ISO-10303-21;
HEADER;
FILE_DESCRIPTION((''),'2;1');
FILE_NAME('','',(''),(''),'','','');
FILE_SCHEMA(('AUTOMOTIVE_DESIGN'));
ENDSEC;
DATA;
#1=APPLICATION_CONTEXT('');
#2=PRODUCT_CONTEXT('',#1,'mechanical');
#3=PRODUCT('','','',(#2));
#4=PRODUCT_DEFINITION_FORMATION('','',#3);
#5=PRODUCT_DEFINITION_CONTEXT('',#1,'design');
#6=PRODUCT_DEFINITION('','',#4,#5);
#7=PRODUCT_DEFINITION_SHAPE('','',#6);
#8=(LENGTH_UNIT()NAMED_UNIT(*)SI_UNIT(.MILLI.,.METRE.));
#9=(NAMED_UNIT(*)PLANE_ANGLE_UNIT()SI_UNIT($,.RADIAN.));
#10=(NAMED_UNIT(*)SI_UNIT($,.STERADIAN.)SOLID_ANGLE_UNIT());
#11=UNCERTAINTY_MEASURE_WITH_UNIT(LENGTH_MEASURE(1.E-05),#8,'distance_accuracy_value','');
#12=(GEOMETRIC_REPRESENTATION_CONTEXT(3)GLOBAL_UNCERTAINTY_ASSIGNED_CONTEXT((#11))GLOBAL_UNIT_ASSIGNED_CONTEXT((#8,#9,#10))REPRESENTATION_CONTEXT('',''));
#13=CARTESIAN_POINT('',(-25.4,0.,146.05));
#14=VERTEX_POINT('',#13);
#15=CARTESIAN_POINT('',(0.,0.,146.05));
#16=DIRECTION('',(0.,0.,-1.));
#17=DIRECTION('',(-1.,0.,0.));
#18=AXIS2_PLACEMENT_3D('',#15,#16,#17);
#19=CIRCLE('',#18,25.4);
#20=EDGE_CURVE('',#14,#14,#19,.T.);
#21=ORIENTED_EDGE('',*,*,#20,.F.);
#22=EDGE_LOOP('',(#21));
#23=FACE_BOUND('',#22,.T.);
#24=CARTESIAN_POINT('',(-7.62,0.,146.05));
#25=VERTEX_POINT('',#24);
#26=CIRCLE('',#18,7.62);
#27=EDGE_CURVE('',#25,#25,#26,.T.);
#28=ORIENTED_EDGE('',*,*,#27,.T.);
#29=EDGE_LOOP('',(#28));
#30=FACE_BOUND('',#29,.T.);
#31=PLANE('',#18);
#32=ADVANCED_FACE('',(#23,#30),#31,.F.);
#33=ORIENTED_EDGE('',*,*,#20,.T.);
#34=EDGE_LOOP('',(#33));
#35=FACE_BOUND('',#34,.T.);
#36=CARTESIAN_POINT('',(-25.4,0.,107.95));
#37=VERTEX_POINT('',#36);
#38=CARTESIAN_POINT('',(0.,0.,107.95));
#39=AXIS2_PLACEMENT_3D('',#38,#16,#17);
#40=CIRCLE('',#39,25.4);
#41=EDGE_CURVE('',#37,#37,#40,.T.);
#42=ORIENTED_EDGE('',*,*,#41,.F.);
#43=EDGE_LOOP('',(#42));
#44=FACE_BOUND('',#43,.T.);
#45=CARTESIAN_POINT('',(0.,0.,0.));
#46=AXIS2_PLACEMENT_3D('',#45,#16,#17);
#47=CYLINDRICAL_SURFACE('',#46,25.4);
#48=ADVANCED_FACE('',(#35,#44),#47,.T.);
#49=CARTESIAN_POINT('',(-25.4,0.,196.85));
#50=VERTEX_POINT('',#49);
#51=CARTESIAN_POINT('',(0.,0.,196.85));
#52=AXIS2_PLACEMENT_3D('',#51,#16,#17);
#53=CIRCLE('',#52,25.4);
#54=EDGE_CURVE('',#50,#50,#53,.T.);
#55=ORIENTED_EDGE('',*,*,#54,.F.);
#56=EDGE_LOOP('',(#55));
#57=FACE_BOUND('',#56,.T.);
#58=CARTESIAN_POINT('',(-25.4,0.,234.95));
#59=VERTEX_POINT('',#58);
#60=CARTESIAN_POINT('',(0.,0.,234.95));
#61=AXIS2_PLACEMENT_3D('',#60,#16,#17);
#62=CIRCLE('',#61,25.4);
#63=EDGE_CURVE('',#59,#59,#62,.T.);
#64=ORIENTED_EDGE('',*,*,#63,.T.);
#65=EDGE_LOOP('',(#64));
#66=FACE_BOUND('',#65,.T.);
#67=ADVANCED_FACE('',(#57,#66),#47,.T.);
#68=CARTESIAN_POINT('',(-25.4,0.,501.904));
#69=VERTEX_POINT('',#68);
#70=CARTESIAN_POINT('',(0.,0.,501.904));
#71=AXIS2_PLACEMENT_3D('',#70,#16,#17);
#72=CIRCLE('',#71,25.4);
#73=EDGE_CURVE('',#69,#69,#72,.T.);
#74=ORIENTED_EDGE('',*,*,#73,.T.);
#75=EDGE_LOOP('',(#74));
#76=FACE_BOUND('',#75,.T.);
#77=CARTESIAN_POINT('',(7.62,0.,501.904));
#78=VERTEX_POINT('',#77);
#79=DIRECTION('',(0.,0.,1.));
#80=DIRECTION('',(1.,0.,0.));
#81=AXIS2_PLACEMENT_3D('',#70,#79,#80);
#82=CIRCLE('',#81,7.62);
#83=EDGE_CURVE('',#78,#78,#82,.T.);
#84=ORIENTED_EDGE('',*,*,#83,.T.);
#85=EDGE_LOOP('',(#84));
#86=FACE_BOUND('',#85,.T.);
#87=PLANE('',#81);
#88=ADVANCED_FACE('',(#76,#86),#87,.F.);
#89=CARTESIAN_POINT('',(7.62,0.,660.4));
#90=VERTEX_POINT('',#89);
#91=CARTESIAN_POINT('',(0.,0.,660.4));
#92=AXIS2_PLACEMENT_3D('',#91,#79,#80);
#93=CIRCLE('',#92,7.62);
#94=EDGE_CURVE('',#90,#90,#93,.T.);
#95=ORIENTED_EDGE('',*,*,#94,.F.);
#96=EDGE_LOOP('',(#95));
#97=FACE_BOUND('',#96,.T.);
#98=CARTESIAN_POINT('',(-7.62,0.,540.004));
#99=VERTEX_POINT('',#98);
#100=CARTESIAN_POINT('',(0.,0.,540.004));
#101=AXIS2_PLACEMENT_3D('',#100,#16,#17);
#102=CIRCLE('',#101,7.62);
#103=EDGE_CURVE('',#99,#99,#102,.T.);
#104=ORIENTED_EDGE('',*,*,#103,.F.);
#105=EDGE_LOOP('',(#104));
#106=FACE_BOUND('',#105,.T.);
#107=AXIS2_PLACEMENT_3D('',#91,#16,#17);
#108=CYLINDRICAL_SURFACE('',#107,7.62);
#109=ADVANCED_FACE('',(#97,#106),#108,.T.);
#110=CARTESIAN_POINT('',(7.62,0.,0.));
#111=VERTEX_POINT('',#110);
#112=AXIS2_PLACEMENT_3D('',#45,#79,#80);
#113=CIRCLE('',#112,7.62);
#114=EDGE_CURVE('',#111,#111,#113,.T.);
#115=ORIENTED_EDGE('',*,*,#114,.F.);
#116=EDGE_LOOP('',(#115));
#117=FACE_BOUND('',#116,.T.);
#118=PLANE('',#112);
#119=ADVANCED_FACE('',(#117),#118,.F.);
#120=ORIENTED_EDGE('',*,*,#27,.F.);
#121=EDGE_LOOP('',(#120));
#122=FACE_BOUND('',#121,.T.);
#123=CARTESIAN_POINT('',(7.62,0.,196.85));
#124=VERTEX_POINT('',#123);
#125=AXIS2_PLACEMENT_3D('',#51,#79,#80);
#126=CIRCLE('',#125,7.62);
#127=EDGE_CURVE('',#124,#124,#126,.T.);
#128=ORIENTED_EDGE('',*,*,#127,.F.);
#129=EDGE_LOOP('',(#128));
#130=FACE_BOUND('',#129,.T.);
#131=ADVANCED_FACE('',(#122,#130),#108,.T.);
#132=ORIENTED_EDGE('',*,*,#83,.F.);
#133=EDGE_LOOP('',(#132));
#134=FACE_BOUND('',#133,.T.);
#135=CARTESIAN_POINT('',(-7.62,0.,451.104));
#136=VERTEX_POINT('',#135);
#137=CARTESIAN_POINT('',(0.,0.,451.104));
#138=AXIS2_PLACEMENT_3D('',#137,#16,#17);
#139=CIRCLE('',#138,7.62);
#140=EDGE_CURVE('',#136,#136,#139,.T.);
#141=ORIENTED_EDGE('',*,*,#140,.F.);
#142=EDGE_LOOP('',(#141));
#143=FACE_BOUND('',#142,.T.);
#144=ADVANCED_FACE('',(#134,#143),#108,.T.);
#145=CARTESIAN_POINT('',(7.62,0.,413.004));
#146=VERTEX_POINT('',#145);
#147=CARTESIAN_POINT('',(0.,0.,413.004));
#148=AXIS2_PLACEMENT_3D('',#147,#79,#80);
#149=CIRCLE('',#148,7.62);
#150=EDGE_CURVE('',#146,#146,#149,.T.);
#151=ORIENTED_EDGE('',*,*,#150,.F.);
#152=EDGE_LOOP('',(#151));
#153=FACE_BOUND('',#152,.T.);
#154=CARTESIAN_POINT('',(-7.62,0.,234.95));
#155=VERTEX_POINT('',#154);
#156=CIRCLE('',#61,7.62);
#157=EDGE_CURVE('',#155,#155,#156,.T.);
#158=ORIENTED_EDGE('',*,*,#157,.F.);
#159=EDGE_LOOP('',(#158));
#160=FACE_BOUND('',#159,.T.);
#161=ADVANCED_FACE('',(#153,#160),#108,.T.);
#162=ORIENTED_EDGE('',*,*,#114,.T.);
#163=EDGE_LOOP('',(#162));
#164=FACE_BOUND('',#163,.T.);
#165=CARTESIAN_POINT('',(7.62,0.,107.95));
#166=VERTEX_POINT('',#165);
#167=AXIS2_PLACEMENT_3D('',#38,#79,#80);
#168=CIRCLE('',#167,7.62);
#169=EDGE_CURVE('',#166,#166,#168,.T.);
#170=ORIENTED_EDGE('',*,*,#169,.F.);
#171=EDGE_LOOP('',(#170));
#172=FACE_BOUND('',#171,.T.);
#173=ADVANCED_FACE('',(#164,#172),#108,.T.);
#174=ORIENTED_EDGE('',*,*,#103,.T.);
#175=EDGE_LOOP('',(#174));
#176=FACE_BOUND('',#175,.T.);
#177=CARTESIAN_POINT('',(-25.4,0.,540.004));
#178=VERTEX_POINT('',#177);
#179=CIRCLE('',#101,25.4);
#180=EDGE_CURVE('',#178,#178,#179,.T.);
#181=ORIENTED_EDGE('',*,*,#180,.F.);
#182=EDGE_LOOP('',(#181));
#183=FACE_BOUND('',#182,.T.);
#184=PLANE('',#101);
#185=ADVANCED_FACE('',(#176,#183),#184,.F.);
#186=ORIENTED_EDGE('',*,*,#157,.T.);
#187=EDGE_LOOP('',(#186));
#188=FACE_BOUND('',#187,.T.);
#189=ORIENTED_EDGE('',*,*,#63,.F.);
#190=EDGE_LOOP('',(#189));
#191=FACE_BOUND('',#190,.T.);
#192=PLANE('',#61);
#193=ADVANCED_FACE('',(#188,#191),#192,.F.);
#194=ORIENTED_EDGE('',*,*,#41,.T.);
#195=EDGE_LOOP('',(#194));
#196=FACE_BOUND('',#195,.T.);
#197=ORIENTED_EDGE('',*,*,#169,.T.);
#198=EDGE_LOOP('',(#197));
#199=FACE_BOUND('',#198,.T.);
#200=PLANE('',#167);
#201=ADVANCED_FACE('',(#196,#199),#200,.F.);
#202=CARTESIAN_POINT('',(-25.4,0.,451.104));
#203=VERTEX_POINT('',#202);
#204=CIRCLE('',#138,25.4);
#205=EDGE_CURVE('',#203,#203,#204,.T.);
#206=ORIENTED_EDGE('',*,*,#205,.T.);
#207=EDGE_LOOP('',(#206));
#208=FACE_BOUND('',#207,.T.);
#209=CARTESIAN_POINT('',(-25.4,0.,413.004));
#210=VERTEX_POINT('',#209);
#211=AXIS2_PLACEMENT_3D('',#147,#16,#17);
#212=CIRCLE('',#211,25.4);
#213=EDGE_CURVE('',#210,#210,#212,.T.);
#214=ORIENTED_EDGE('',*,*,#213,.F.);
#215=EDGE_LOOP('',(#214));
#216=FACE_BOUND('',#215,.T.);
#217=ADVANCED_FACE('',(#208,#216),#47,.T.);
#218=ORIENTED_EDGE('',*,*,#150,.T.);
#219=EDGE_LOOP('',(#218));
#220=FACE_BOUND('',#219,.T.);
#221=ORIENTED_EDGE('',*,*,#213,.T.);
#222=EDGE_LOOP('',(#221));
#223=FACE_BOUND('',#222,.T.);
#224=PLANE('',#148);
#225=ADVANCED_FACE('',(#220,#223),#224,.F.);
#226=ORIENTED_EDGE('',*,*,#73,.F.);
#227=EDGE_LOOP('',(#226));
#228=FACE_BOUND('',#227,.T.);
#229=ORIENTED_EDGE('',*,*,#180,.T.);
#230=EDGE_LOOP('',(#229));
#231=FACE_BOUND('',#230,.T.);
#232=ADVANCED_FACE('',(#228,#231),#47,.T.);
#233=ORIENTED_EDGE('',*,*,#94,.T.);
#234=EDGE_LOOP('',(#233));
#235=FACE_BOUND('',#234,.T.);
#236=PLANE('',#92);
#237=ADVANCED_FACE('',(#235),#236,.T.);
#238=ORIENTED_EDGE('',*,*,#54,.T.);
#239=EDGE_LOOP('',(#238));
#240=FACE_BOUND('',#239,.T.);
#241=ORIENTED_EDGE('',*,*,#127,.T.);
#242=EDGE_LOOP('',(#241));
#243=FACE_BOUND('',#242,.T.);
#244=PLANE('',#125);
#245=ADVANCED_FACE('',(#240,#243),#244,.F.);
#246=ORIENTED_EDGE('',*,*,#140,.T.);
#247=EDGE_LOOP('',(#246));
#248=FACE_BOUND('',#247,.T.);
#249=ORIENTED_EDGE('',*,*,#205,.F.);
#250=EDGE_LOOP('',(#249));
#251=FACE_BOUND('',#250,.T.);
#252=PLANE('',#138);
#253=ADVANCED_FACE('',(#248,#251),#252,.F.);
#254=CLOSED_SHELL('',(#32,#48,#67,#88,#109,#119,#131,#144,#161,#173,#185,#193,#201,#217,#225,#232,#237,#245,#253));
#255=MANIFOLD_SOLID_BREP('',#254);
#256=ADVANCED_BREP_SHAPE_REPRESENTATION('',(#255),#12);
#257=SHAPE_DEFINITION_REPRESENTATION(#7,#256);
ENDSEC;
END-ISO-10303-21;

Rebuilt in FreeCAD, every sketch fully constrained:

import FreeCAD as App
import Part
import Sketcher

V = App.Vector
Q = App.Units.Quantity

doc = App.newDocument("Part")
params = doc.addObject("Spreadsheet::Sheet", "Params")
for row, (alias, value) in enumerate([
    ("sketch1_diameter", "0.6 in"),
    ("pad1_length", "26 in"),
    ("sketch2_width", "1 in"),
    ("sketch2_height", "1.5 in"),
    ("revolution_angle", "360 deg"),
], start=1):
    params.set(f"A{row}", alias)
    params.set(f"B{row}", "=" + value)
    params.setAlias(f"B{row}", alias)

body = doc.addObject("PartDesign::Body", "Body")

sketch1 = body.newObject("Sketcher::SketchObject", "Sketch")
sketch1.AttachmentSupport = (doc.getObject("XY_Plane"), [""])
sketch1.MapMode = "FlatFace"
sketch1.addGeometry(Part.Circle(V(0, 0, 0), V(0, 0, 1), 8), False)
sketch1.addConstraint([
    Sketcher.Constraint("Coincident", 0, 3, -1, 1),
    Sketcher.Constraint("Diameter", 0, Q("0.6 in")),
])
sketch1.setExpression("Constraints[1]", "Params.sketch1_diameter")
pad1 = body.newObject("PartDesign::Pad", "Pad")
pad1.Profile = sketch1
pad1.setExpression("Length", "Params.pad1_length")

sketch2 = body.newObject("Sketcher::SketchObject", "Sketch001")
sketch2.AttachmentSupport = (doc.getObject("XZ_Plane"), [""])
sketch2.MapMode = "FlatFace"
sketch2.addGeometry([
    Part.LineSegment(V(0, 108, 0), V(0, 146, 0)),
    Part.LineSegment(V(0, 146, 0), V(25, 146, 0)),
    Part.LineSegment(V(25, 146, 0), V(25, 108, 0)),
    Part.LineSegment(V(25, 108, 0), V(0, 108, 0)),
    Part.LineSegment(V(0, 197, 0), V(0, 235, 0)),
    Part.LineSegment(V(0, 235, 0), V(25, 235, 0)),
    Part.LineSegment(V(25, 235, 0), V(25, 197, 0)),
    Part.LineSegment(V(25, 197, 0), V(0, 197, 0)),
    Part.LineSegment(V(0, 413, 0), V(0, 451, 0)),
    Part.LineSegment(V(0, 451, 0), V(25, 451, 0)),
    Part.LineSegment(V(25, 451, 0), V(25, 413, 0)),
    Part.LineSegment(V(25, 413, 0), V(0, 413, 0)),
    Part.LineSegment(V(0, 502, 0), V(0, 540, 0)),
    Part.LineSegment(V(0, 540, 0), V(25, 540, 0)),
    Part.LineSegment(V(25, 540, 0), V(25, 502, 0)),
    Part.LineSegment(V(25, 502, 0), V(0, 502, 0)),
], False)
sketch2.addConstraint([
    Sketcher.Constraint("Coincident", 0, 2, 1, 1),
    Sketcher.Constraint("Coincident", 1, 2, 2, 1),
    Sketcher.Constraint("Coincident", 2, 2, 3, 1),
    Sketcher.Constraint("Coincident", 3, 2, 0, 1),
    Sketcher.Constraint("Coincident", 4, 2, 5, 1),
    Sketcher.Constraint("Coincident", 5, 2, 6, 1),
    Sketcher.Constraint("Coincident", 6, 2, 7, 1),
    Sketcher.Constraint("Coincident", 7, 2, 4, 1),
    Sketcher.Constraint("Coincident", 8, 2, 9, 1),
    Sketcher.Constraint("Coincident", 9, 2, 10, 1),
    Sketcher.Constraint("Coincident", 10, 2, 11, 1),
    Sketcher.Constraint("Coincident", 11, 2, 8, 1),
    Sketcher.Constraint("Coincident", 12, 2, 13, 1),
    Sketcher.Constraint("Coincident", 13, 2, 14, 1),
    Sketcher.Constraint("Coincident", 14, 2, 15, 1),
    Sketcher.Constraint("Coincident", 15, 2, 12, 1),
    Sketcher.Constraint("Vertical", 0),
    Sketcher.Constraint("Horizontal", 1),
    Sketcher.Constraint("Vertical", 2),
    Sketcher.Constraint("Horizontal", 3),
    Sketcher.Constraint("Vertical", 4),
    Sketcher.Constraint("Horizontal", 5),
    Sketcher.Constraint("Vertical", 6),
    Sketcher.Constraint("Horizontal", 7),
    Sketcher.Constraint("Vertical", 8),
    Sketcher.Constraint("Horizontal", 9),
    Sketcher.Constraint("Vertical", 10),
    Sketcher.Constraint("Horizontal", 11),
    Sketcher.Constraint("Vertical", 12),
    Sketcher.Constraint("Horizontal", 13),
    Sketcher.Constraint("Vertical", 14),
    Sketcher.Constraint("Horizontal", 15),
    Sketcher.Constraint("PointOnObject", 0, 2, -2),
    Sketcher.Constraint("PointOnObject", 4, 2, -2),
    Sketcher.Constraint("PointOnObject", 8, 2, -2),
    Sketcher.Constraint("PointOnObject", 12, 2, -2),
    Sketcher.Constraint("Vertical", 2, 2, 5, 2),
    Sketcher.Constraint("Vertical", 6, 2, 9, 2),
    Sketcher.Constraint("Vertical", 10, 2, 13, 2),
    Sketcher.Constraint("Equal", 2, 4),
    Sketcher.Constraint("Equal", 6, 8),
    Sketcher.Constraint("Equal", 10, 12),
    Sketcher.Constraint("DistanceX", 1, 1, 1, 2, Q("1 in")),
    Sketcher.Constraint("DistanceY", 0, 1, 0, 2, Q("1.5 in")),
    Sketcher.Constraint("DistanceY", 3, 2, 4, 2, Q("5 in")),
    Sketcher.Constraint("DistanceY", 11, 2, 12, 2, Q("5 in")),
    Sketcher.Constraint("DistanceY", -1, 1, 0, 2, Q("5.75 in")),
    Sketcher.Constraint("DistanceY", -1, 1, 8, 2, Q("17.76 in")),
])
sketch2.setExpression("Constraints[42]", "Params.sketch2_width")
sketch2.setExpression("Constraints[43]", "Params.sketch2_height")
revolution = body.newObject("PartDesign::Revolution", "Revolution")
revolution.Profile = sketch2
revolution.ReferenceAxis = (sketch2, ["V_Axis"])
revolution.setExpression("Angle", "Params.revolution_angle")

doc.recompute()
